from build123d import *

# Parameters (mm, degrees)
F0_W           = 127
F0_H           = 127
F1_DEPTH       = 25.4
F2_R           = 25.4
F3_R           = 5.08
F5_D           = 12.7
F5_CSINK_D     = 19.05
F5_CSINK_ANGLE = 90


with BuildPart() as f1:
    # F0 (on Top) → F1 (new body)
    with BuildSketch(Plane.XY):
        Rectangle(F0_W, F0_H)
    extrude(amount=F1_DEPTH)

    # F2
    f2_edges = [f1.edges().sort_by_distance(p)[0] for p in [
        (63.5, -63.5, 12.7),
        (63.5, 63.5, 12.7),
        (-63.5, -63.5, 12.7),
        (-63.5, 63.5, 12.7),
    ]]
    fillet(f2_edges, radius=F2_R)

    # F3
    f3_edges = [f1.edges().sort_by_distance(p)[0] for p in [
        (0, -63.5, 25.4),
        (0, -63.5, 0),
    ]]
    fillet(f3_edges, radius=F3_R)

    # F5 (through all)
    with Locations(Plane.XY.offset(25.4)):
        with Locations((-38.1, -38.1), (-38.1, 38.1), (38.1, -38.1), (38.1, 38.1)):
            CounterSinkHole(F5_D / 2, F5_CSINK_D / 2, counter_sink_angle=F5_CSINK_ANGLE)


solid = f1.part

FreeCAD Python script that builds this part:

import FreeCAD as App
import Part
import Sketcher

V = App.Vector
Q = App.Units.Quantity


def edges_at(feature, points):
    """Names of the edges that pass closest to the given points."""
    edges = feature.Shape.Edges
    near = lambda p: min(range(len(edges)), key=lambda i: edges[i].distToShape(Part.Vertex(*p))[0])
    return sorted({f"Edge{near(p) + 1}" for p in points})

doc = App.newDocument("Part")
body = doc.addObject("PartDesign::Body", "Body")

# Sketch on XY plane
sketch1 = body.newObject("Sketcher::SketchObject", "Sketch")
sketch1.AttachmentSupport = (doc.getObject("XY_Plane"), [""])
sketch1.MapMode = "FlatFace"
sketch1.addGeometry([
    Part.LineSegment(V(-64, 64, 0), V(-64, -64, 0)),
    Part.LineSegment(V(-64, -64, 0), V(64, -64, 0)),
    Part.LineSegment(V(64, -64, 0), V(64, 64, 0)),
    Part.LineSegment(V(64, 64, 0), V(-64, 64, 0)),
], False)
sketch1.addConstraint([
    Sketcher.Constraint("Coincident", 0, 2, 1, 1),
    Sketcher.Constraint("Coincident", 1, 2, 2, 1),
    Sketcher.Constraint("Coincident", 2, 2, 3, 1),
    Sketcher.Constraint("Coincident", 3, 2, 0, 1),
    Sketcher.Constraint("Vertical", 0),
    Sketcher.Constraint("Horizontal", 1),
    Sketcher.Constraint("Vertical", 2),
    Sketcher.Constraint("Horizontal", 3),
    Sketcher.Constraint("Symmetric", 0, 2, 2, 2, -1, 1),
    Sketcher.Constraint("Equal", 3, 0),
    Sketcher.Constraint("DistanceX", 1, 1, 1, 2, Q("5 in")),
])
pad1 = body.newObject("PartDesign::Pad", "Pad")
pad1.Profile = sketch1
pad1.Length = Q("1 in")
doc.recompute()

fillet = body.newObject("PartDesign::Fillet", "Fillet")
fillet.Base = (pad1, edges_at(pad1, [
    (63.5, -63.5, 12.7),
    (63.5, 63.5, 12.7),
    (-63.5, -63.5, 12.7),
    (-63.5, 63.5, 12.7),
]))
fillet.Radius = Q("1 in")
doc.recompute()

fillet2 = body.newObject("PartDesign::Fillet", "Fillet001")
fillet2.Base = (fillet, edges_at(fillet, [(0, -63.5, 25.4), (0, -63.5, 0)]))
fillet2.Radius = Q("0.2 in")

# Sketch on XY plane
sketch2 = body.newObject("Sketcher::SketchObject", "Sketch001")
sketch2.AttachmentSupport = (doc.getObject("XY_Plane"), [""])
sketch2.MapMode = "FlatFace"
sketch2.AttachmentOffset = App.Placement(V(0, 0, 1 * 25.4), App.Rotation())
sketch2.addGeometry([
    Part.Circle(V(-38, -38, 0), V(0, 0, 1), 6),
    Part.Circle(V(-38, 38, 0), V(0, 0, 1), 6),
    Part.Circle(V(38, -38, 0), V(0, 0, 1), 6),
    Part.Circle(V(38, 38, 0), V(0, 0, 1), 6),
], False)
sketch2.addConstraint([
    Sketcher.Constraint("Equal", 0, 1),
    Sketcher.Constraint("Equal", 1, 2),
    Sketcher.Constraint("Equal", 2, 3),
    Sketcher.Constraint("Symmetric", 1, 3, 2, 3, -1, 1),
    Sketcher.Constraint("Symmetric", 0, 3, 3, 3, -1, 1),
    Sketcher.Constraint("Symmetric", 0, 3, 2, 3, -2),
    Sketcher.Constraint("Diameter", 0, Q("0.5 in")),
    Sketcher.Constraint("DistanceY", 0, 3, 1, 3, Q("3 in")),
    Sketcher.Constraint("DistanceX", 0, 3, 2, 3, Q("3 in")),
])
doc.recompute()
hole = body.newObject("PartDesign::Hole", "Hole")
hole.Profile = sketch2
hole.ThreadType = "None"
hole.Diameter = Q("0.5 in")
hole.DepthType = "ThroughAll"
hole.HoleCutType = "Countersink"
hole.HoleCutDiameter = Q("0.75 in")
hole.HoleCutCountersinkAngle = 90

doc.recompute()
